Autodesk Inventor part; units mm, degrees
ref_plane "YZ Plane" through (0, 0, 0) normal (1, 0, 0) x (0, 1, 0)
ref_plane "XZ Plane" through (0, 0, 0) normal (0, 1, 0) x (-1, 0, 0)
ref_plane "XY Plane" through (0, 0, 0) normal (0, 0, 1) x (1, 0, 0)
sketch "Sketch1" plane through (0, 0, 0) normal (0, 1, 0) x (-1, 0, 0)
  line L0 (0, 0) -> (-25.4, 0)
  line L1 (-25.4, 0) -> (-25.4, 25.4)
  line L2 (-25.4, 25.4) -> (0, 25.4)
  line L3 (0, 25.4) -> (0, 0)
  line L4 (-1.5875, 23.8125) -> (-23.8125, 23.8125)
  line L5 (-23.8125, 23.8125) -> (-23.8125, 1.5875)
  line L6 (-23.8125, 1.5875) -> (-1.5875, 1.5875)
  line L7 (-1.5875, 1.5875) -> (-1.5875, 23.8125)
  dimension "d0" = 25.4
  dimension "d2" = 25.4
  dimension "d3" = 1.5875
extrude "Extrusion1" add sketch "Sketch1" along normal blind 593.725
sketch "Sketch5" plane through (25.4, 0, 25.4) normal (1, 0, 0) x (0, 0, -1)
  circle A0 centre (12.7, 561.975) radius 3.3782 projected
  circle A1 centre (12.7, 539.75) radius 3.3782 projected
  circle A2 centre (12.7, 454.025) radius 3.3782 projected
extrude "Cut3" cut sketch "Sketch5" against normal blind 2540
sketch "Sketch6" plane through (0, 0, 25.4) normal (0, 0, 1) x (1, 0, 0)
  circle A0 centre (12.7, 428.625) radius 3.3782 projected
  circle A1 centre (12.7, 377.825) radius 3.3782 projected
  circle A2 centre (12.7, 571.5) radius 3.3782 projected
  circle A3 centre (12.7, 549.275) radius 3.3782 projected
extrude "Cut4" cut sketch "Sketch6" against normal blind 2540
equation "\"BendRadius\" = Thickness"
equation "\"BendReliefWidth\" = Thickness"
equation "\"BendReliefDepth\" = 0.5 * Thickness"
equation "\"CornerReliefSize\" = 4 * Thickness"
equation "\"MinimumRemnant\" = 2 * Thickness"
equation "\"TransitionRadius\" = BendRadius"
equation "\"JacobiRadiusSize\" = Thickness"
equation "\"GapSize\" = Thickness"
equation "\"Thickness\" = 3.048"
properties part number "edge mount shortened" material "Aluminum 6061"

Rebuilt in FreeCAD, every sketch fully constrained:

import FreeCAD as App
import Part
import Sketcher
from FreeCAD import Vector
Q = App.Units.Quantity

doc = App.newDocument("Part")
body = doc.addObject("PartDesign::Body", "Body")

# Sketch on XZ plane
sketch1 = body.newObject("Sketcher::SketchObject", "Sketch")
sketch1.AttachmentSupport = (doc.getObject("XZ_Plane"), [""])
sketch1.MapMode = "FlatFace"
sketch1.addGeometry([
    Part.LineSegment(Vector(25, 0, 0), Vector(0, 0, 0)),  # 0
    Part.LineSegment(Vector(0, 0, 0), Vector(0, 25, 0)),  # 1
    Part.LineSegment(Vector(0, 25, 0), Vector(25, 25, 0)),  # 2
    Part.LineSegment(Vector(25, 25, 0), Vector(25, 0, 0)),  # 3
    Part.LineSegment(Vector(24, 24, 0), Vector(2, 24, 0)),  # 4
    Part.LineSegment(Vector(2, 24, 0), Vector(2, 2, 0)),  # 5
    Part.LineSegment(Vector(2, 2, 0), Vector(24, 2, 0)),  # 6
    Part.LineSegment(Vector(24, 2, 0), Vector(24, 24, 0)),  # 7
], False)
sketch1.addConstraint([
    Sketcher.Constraint("Coincident", 0, 2, 1, 1),
    Sketcher.Constraint("Coincident", 1, 2, 2, 1),
    Sketcher.Constraint("Coincident", 2, 2, 3, 1),
    Sketcher.Constraint("Coincident", 3, 2, 0, 1),
    Sketcher.Constraint("Coincident", 4, 2, 5, 1),
    Sketcher.Constraint("Coincident", 5, 2, 6, 1),
    Sketcher.Constraint("Coincident", 6, 2, 7, 1),
    Sketcher.Constraint("Coincident", 7, 2, 4, 1),
    Sketcher.Constraint("Horizontal", 0),
    Sketcher.Constraint("Vertical", 1),
    Sketcher.Constraint("Horizontal", 2),
    Sketcher.Constraint("Vertical", 3),
    Sketcher.Constraint("Horizontal", 4),
    Sketcher.Constraint("Vertical", 5),
    Sketcher.Constraint("Horizontal", 6),
    Sketcher.Constraint("Vertical", 7),
    Sketcher.Constraint("Coincident", 0, 2, -1, 1),
    Sketcher.Constraint("Equal", 2, 1),
    Sketcher.Constraint("Equal", 6, 5),
    Sketcher.Constraint("DistanceX", 0, 2, 0, 1, Q("1 in")),
    Sketcher.Constraint("DistanceX", -1, 1, 4, 2, Q("0.0625 in")),
    Sketcher.Constraint("DistanceY", -1, 1, 5, 2, Q("0.0625 in")),
    Sketcher.Constraint("DistanceY", 4, 2, 1, 2, Q("0.0625 in")),
])
pad1 = body.newObject("PartDesign::Pad", "Pad")
pad1.Profile = sketch1
pad1.Length = Q("23.375 in")
pad1.Reversed = True

# Sketch on YZ plane
sketch2 = body.newObject("Sketcher::SketchObject", "Sketch001")
sketch2.AttachmentSupport = (doc.getObject("YZ_Plane"), [""])
sketch2.MapMode = "FlatFace"
sketch2.AttachmentOffset = App.Placement(Vector(0, 0, 1 * 25.4), App.Rotation())
sketch2.addGeometry([
    Part.Circle(Vector(562, 12.7, 0), Vector(0, 0, 1), 3.4),
    Part.Circle(Vector(539.8, 12.7, 0), Vector(0, 0, 1), 3.4),
    Part.Circle(Vector(454, 12.7, 0), Vector(0, 0, 1), 3.4),
], False)
sketch2.addConstraint([
    Sketcher.Constraint("Equal", 0, 1),
    Sketcher.Constraint("Equal", 1, 2),
    Sketcher.Constraint("Horizontal", 0, 3, 1, 3),
    Sketcher.Constraint("Horizontal", 1, 3, 2, 3),
    Sketcher.Constraint("Diameter", 0, Q("0.266 in")),
    Sketcher.Constraint("DistanceY", -1, 1, 0, 3, Q("0.5 in")),
    Sketcher.Constraint("DistanceX", -1, 1, 1, 3, Q("21.25 in")),
    Sketcher.Constraint("DistanceX", 2, 3, 0, 3, Q("4.25 in")),
    Sketcher.Constraint("DistanceX", -1, 1, 0, 3, Q("22.125 in")),
])
pocket1 = body.newObject("PartDesign::Pocket", "Pocket")
pocket1.Profile = sketch2
pocket1.Length = Q("100 in")

# Sketch on XY plane
sketch3 = body.newObject("Sketcher::SketchObject", "Sketch002")
sketch3.AttachmentSupport = (doc.getObject("XY_Plane"), [""])
sketch3.MapMode = "FlatFace"
sketch3.AttachmentOffset = App.Placement(Vector(0, 0, 1 * 25.4), App.Rotation())
sketch3.addGeometry([
    Part.Circle(Vector(12.7, 428.6, 0), Vector(0, 0, 1), 3.4),
    Part.Circle(Vector(12.7, 377.8, 0), Vector(0, 0, 1), 3.4),
    Part.Circle(Vector(12.7, 571.5, 0), Vector(0, 0, 1), 3.4),
    Part.Circle(Vector(12.7, 549.3, 0), Vector(0, 0, 1), 3.4),
], False)
sketch3.addConstraint([
    Sketcher.Constraint("Equal", 0, 1),
    Sketcher.Constraint("Equal", 1, 2),
    Sketcher.Constraint("Equal", 2, 3),
    Sketcher.Constraint("Vertical", 0, 3, 1, 3),
    Sketcher.Constraint("Vertical", 1, 3, 2, 3),
    Sketcher.Constraint("Vertical", 2, 3, 3, 3),
    Sketcher.Constraint("Diameter", 0, Q("0.266 in")),
    Sketcher.Constraint("DistanceY", 1, 3, 0, 3, Q("2 in")),
    Sketcher.Constraint("DistanceX", -1, 1, 0, 3, Q("0.5 in")),
    Sketcher.Constraint("DistanceY", -1, 1, 2, 3, Q("22.5 in")),
    Sketcher.Constraint("DistanceY", 0, 3, 3, 3, Q("4.75 in")),
    Sketcher.Constraint("DistanceY", -1, 1, 0, 3, Q("16.875 in")),
])
pocket2 = body.newObject("PartDesign::Pocket", "Pocket001")
pocket2.Profile = sketch3
pocket2.Length = Q("100 in")

doc.recompute()
